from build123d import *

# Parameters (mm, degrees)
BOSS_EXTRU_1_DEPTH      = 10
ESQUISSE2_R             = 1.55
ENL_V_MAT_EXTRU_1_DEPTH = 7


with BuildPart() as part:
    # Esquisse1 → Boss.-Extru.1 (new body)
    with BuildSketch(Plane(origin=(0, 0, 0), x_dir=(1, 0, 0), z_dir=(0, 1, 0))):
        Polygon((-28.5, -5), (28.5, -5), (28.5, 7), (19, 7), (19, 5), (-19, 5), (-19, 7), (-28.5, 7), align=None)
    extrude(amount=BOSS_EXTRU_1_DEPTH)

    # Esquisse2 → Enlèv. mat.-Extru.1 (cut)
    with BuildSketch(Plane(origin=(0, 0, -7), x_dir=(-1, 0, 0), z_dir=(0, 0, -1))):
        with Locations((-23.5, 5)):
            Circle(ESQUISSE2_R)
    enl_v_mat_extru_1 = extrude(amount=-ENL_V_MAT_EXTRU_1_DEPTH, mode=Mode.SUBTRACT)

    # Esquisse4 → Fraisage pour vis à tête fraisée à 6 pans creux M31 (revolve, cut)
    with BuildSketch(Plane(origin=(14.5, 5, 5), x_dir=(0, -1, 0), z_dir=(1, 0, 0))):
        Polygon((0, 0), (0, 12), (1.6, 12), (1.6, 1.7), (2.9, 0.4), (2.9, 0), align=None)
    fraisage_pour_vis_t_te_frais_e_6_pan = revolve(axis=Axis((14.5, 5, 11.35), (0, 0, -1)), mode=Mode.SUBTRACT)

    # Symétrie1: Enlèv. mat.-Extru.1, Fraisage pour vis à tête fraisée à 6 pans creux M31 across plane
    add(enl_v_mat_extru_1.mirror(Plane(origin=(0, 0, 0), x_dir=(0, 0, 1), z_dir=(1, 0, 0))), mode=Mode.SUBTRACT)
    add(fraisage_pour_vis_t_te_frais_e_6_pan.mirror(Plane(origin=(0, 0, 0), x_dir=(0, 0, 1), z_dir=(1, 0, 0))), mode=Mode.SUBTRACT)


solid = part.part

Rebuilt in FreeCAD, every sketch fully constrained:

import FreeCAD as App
import Part
import Sketcher
from FreeCAD import Vector
Q = App.Units.Quantity


def add_polygon(sketch, points):
    """Adds a closed chain of lines whose ends are joined by coincident constraints."""
    first, n = sketch.GeometryCount, len(points)
    for a, b in zip(points, points[1:] + points[:1]):
        sketch.addGeometry(Part.LineSegment(App.Vector(*a, 0), App.Vector(*b, 0)), False)
    for i in range(n):
        sketch.addConstraint(Sketcher.Constraint("Coincident", first + i, 2, first + (i + 1) % n, 1))

doc = App.newDocument("Part")
body = doc.addObject("PartDesign::Body", "Body")

# Sketch on XZ plane
sketch1 = body.newObject("Sketcher::SketchObject", "Sketch")
sketch1.AttachmentSupport = (doc.getObject("XZ_Plane"), [""])
sketch1.MapMode = "FlatFace"
add_polygon(sketch1, [(-28.5, 5), (28.5, 5), (28.5, -7), (19, -7), (19, -5), (-19, -5), (-19, -7), (-28.5, -7)])  # lines 0-7
sketch1.addConstraint(Sketcher.Constraint("Horizontal", 0))
sketch1.addConstraint(Sketcher.Constraint("Vertical", 1))
sketch1.addConstraint(Sketcher.Constraint("Horizontal", 2))
sketch1.addConstraint(Sketcher.Constraint("Vertical", 3))
sketch1.addConstraint(Sketcher.Constraint("Horizontal", 4))
sketch1.addConstraint(Sketcher.Constraint("Vertical", 5))
sketch1.addConstraint(Sketcher.Constraint("Horizontal", 6))
sketch1.addConstraint(Sketcher.Constraint("Vertical", 7))
sketch1.addConstraint(Sketcher.Constraint("Symmetric", 2, 2, 5, 2, -2))
sketch1.addConstraint(Sketcher.Constraint("Equal", 2, 6))
sketch1.addConstraint(Sketcher.Constraint("DistanceX", 0, 1, 0, 2, Q("57 mm")))
sketch1.addConstraint(Sketcher.Constraint("DistanceX", 4, 2, 4, 1, Q("38 mm")))
sketch1.addConstraint(Sketcher.Constraint("DistanceY", 1, 2, 1, 1, Q("12 mm")))
sketch1.addConstraint(Sketcher.Constraint("DistanceY", 3, 1, 3, 2, Q("2 mm")))
sketch1.addConstraint(Sketcher.Constraint("DistanceY", -1, 1, 0, 2, Q("5 mm")))
pad1 = body.newObject("PartDesign::Pad", "Pad")
pad1.Profile = sketch1
pad1.Length = 10
pad1.Reversed = True

# Sketch on XY plane
sketch2 = body.newObject("Sketcher::SketchObject", "Sketch001")
sketch2.AttachmentSupport = (doc.getObject("XY_Plane"), [""])
sketch2.MapMode = "FlatFace"
sketch2.AttachmentOffset = App.Placement(Vector(0, 0, -7), App.Rotation())
sketch2.addGeometry(Part.Circle(Vector(23.5, 5, 0), Vector(0, 0, 1), 1.6), False)
sketch2.addConstraint(Sketcher.Constraint("Diameter", 0, Q("3.1 mm")))
sketch2.addConstraint(Sketcher.Constraint("DistanceY", -1, 1, 0, 3, Q("5 mm")))
sketch2.addConstraint(Sketcher.Constraint("DistanceX", -1, 1, 0, 3, Q("23.5 mm")))
pocket1 = body.newObject("PartDesign::Pocket", "Pocket")
pocket1.Profile = sketch2
pocket1.Length = 7
pocket1.Reversed = True

# Sketch on YZ plane
sketch3 = body.newObject("Sketcher::SketchObject", "Sketch002")
sketch3.AttachmentSupport = (doc.getObject("YZ_Plane"), [""])
sketch3.MapMode = "FlatFace"
sketch3.AttachmentOffset = App.Placement(Vector(0, 0, 14.5), App.Rotation())
add_polygon(sketch3, [(5, -7), (5, 5), (2.1, 5), (2.1, 4.6), (3.4, 3.3), (3.4, -7)])  # lines 0-5
sketch3.addGeometry(Part.LineSegment(Vector(5, 5, 0), Vector(5, -7, 0)), True)  # axis
sketch3.addConstraint(Sketcher.Constraint("Vertical", 0))
sketch3.addConstraint(Sketcher.Constraint("Horizontal", 1))
sketch3.addConstraint(Sketcher.Constraint("Vertical", 2))
sketch3.addConstraint(Sketcher.Constraint("Vertical", 4))
sketch3.addConstraint(Sketcher.Constraint("Horizontal", 5))
sketch3.addConstraint(Sketcher.Constraint("Vertical", 6))
sketch3.addConstraint(Sketcher.Constraint("Coincident", 6, 1, 0, 2))
sketch3.addConstraint(Sketcher.Constraint("Horizontal", 4, 2, 6, 2))
sketch3.addConstraint(Sketcher.Constraint("DistanceY", 0, 1, 0, 2, Q("12 mm")))
sketch3.addConstraint(Sketcher.Constraint("Angle", 3, Q("-45 deg")))
sketch3.addConstraint(Sketcher.Constraint("DistanceX", 1, 2, 1, 1, Q("2.9 mm")))
sketch3.addConstraint(Sketcher.Constraint("DistanceX", 5, 1, 5, 2, Q("1.6 mm")))
sketch3.addConstraint(Sketcher.Constraint("DistanceY", 2, 2, 2, 1, Q("0.4 mm")))
sketch3.addConstraint(Sketcher.Constraint("DistanceX", -1, 1, 0, 2, Q("5 mm")))
sketch3.addConstraint(Sketcher.Constraint("DistanceY", -1, 1, 0, 2, Q("5 mm")))
groove = body.newObject("PartDesign::Groove", "Groove")
groove.Profile = sketch3
groove.ReferenceAxis = (sketch3, ["Axis0"])
groove.Angle = 360
doc.recompute()

mirrored = body.newObject("PartDesign::Mirrored", "Mirrored")
mirrored.Originals = [pocket1, groove]
mirrored.MirrorPlane = (doc.getObject("YZ_Plane"), [""])
body.Tip = mirrored

doc.recompute()
